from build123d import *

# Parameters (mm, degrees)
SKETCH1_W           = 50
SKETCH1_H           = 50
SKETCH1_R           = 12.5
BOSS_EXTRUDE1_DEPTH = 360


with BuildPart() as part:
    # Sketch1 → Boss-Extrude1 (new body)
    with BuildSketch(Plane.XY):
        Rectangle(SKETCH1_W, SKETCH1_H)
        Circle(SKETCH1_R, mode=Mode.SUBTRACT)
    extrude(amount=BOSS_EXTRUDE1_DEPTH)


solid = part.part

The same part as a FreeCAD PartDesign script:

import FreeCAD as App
import Part
import Sketcher
Q = App.Units.Quantity

doc = App.newDocument("Part")
body = doc.addObject("PartDesign::Body", "Body")

sketch1 = body.newObject("Sketcher::SketchObject", "Sketch")
sketch1.AttachmentSupport = (doc.getObject("XY_Plane"), [""])
sketch1.MapMode = "FlatFace"
sketch1.addGeometry(Part.LineSegment(App.Vector(-25, 25, 0), App.Vector(-25, -25, 0)), False)
sketch1.addGeometry(Part.LineSegment(App.Vector(-25, -25, 0), App.Vector(25, -25, 0)), False)
sketch1.addGeometry(Part.LineSegment(App.Vector(25, -25, 0), App.Vector(25, 25, 0)), False)
sketch1.addGeometry(Part.LineSegment(App.Vector(25, 25, 0), App.Vector(-25, 25, 0)), False)
sketch1.addGeometry(Part.Circle(App.Vector(0, 0, 0), App.Vector(0, 0, 1), 12), False)
sketch1.addConstraint(Sketcher.Constraint("Coincident", 0, 2, 1, 1))
sketch1.addConstraint(Sketcher.Constraint("Coincident", 1, 2, 2, 1))
sketch1.addConstraint(Sketcher.Constraint("Coincident", 2, 2, 3, 1))
sketch1.addConstraint(Sketcher.Constraint("Coincident", 3, 2, 0, 1))
sketch1.addConstraint(Sketcher.Constraint("Vertical", 0))
sketch1.addConstraint(Sketcher.Constraint("Horizontal", 1))
sketch1.addConstraint(Sketcher.Constraint("Vertical", 2))
sketch1.addConstraint(Sketcher.Constraint("Horizontal", 3))
sketch1.addConstraint(Sketcher.Constraint("Coincident", 4, 3, -1, 1))
sketch1.addConstraint(Sketcher.Constraint("Symmetric", 0, 2, 2, 2, -1, 1))
sketch1.addConstraint(Sketcher.Constraint("Equal", 3, 0))
sketch1.addConstraint(Sketcher.Constraint("Diameter", 4, Q("25 mm")))
sketch1.addConstraint(Sketcher.Constraint("DistanceX", 1, 1, 1, 2, Q("50 mm")))
pad1 = body.newObject("PartDesign::Pad", "Pad")
pad1.Profile = sketch1
pad1.Length = 360

doc.recompute()
